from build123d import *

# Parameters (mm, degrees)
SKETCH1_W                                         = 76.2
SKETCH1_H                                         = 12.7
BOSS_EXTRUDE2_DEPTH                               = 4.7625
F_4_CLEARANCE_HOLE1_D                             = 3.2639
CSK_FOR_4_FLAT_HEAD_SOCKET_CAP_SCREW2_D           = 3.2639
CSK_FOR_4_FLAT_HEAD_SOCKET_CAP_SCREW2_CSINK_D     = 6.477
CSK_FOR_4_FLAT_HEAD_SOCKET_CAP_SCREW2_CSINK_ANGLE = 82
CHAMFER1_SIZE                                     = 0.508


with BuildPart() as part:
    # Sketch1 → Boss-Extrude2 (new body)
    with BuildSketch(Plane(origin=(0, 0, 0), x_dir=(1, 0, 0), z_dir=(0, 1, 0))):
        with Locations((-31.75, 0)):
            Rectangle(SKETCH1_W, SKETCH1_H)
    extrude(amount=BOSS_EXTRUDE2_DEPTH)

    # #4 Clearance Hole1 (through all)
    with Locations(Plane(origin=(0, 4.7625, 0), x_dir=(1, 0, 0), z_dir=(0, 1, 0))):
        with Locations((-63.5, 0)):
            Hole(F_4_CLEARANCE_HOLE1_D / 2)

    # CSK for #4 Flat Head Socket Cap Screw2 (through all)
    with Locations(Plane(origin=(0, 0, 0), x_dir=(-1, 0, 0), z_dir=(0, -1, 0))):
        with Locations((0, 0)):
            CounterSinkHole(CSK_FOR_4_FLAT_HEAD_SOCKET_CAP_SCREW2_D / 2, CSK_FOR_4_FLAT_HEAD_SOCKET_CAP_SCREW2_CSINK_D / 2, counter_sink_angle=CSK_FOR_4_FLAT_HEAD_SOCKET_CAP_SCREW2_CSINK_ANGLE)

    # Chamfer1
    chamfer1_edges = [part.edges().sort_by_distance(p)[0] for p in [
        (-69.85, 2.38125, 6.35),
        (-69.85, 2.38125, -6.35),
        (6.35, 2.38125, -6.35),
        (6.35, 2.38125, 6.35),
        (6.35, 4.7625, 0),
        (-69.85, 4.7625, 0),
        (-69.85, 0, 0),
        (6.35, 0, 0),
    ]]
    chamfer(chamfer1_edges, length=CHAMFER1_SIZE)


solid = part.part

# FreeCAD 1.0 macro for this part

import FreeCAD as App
import Part
import Sketcher

V = App.Vector
Q = App.Units.Quantity


def edges_at(feature, points):
    """Names of the edges that pass closest to the given points."""
    edges = feature.Shape.Edges
    near = lambda p: min(range(len(edges)), key=lambda i: edges[i].distToShape(Part.Vertex(*p))[0])
    return sorted({f"Edge{near(p) + 1}" for p in points})


def add_polygon(sketch, points):
    """Adds a closed chain of lines whose ends are joined by coincident constraints."""
    first, n = sketch.GeometryCount, len(points)
    for a, b in zip(points, points[1:] + points[:1]):
        sketch.addGeometry(Part.LineSegment(App.Vector(*a, 0), App.Vector(*b, 0)), False)
    for i in range(n):
        sketch.addConstraint(Sketcher.Constraint("Coincident", first + i, 2, first + (i + 1) % n, 1))

doc = App.newDocument("Part")
body = doc.addObject("PartDesign::Body", "Body")

sketch1 = doc.addObject("Sketcher::SketchObject", "Sketch")
body.addObject(sketch1)
sketch1.AttachmentSupport = (doc.XZ_Plane, [""])
sketch1.MapMode = "FlatFace"
add_polygon(sketch1, [(-70, -6), (-70, 6), (6, 6), (6, -6)])
sketch1.addConstraint([
    Sketcher.Constraint("Vertical", 0),
    Sketcher.Constraint("Horizontal", 1),
    Sketcher.Constraint("Vertical", 2),
    Sketcher.Constraint("Horizontal", 3),
    Sketcher.Constraint("DistanceX", 1, 1, 1, 2, Q("3 in")),
    Sketcher.Constraint("DistanceY", 0, 1, 0, 2, Q("0.5 in")),
    Sketcher.Constraint("DistanceX", 0, 2, -1, 1, Q("2.75 in")),
    Sketcher.Constraint("DistanceY", -1, 1, 0, 2, Q("0.25 in")),
])
pad1 = doc.addObject("PartDesign::Pad", "Pad")
body.addObject(pad1)
pad1.Profile = sketch1
pad1.Length = Q("0.1875 in")
pad1.Reversed = True

sketch2 = doc.addObject("Sketcher::SketchObject", "Sketch001")
body.addObject(sketch2)
sketch2.AttachmentSupport = (doc.XZ_Plane, [""])
sketch2.MapMode = "FlatFace"
sketch2.AttachmentOffset = App.Placement(V(0, 0, -0.1875 * 25.4), App.Rotation())
sketch2.addGeometry(Part.Circle(V(-63.5, 0, 0), V(0, 0, 1), 1.6), False)
sketch2.addConstraint([
    Sketcher.Constraint("PointOnObject", 0, 3, -1),
    Sketcher.Constraint("Diameter", 0, Q("0.1285 in")),
    Sketcher.Constraint("DistanceX", 0, 3, -1, 1, Q("2.5 in")),
])
doc.recompute()
hole = doc.addObject("PartDesign::Hole", "Hole")
body.addObject(hole)
hole.Profile = sketch2
hole.ThreadType = "None"
hole.Diameter = Q("0.1285 in")
hole.DepthType = "ThroughAll"
hole.Reversed = True

sketch3 = doc.addObject("Sketcher::SketchObject", "Sketch002")
body.addObject(sketch3)
sketch3.AttachmentSupport = (doc.XZ_Plane, [""])
sketch3.MapMode = "FlatFace"
sketch3.addGeometry(Part.Circle(V(0, 0, 0), V(0, 0, 1), 1.6), False)
sketch3.addConstraint([
    Sketcher.Constraint("Coincident", 0, 3, -1, 1),
    Sketcher.Constraint("Diameter", 0, Q("0.1285 in")),
])
doc.recompute()
hole2 = doc.addObject("PartDesign::Hole", "Hole001")
body.addObject(hole2)
hole2.Profile = sketch3
hole2.ThreadType = "None"
hole2.Diameter = Q("0.1285 in")
hole2.DepthType = "ThroughAll"
hole2.HoleCutType = "Countersink"
hole2.HoleCutDiameter = Q("0.255 in")
hole2.HoleCutCountersinkAngle = 82
doc.recompute()

chamfer = doc.addObject("PartDesign::Chamfer", "Chamfer")
body.addObject(chamfer)
chamfer.Base = (hole2, edges_at(hole2, [
    (-69.85, 2.381, 6.35),
    (-69.85, 2.381, -6.35),
    (6.35, 2.381, -6.35),
    (6.35, 2.381, 6.35),
    (6.35, 4.763, 0),
    (-69.85, 4.763, 0),
    (-69.85, 0, 0),
    (6.35, 0, 0),
]))
chamfer.Size = Q("0.02 in")

doc.recompute()
